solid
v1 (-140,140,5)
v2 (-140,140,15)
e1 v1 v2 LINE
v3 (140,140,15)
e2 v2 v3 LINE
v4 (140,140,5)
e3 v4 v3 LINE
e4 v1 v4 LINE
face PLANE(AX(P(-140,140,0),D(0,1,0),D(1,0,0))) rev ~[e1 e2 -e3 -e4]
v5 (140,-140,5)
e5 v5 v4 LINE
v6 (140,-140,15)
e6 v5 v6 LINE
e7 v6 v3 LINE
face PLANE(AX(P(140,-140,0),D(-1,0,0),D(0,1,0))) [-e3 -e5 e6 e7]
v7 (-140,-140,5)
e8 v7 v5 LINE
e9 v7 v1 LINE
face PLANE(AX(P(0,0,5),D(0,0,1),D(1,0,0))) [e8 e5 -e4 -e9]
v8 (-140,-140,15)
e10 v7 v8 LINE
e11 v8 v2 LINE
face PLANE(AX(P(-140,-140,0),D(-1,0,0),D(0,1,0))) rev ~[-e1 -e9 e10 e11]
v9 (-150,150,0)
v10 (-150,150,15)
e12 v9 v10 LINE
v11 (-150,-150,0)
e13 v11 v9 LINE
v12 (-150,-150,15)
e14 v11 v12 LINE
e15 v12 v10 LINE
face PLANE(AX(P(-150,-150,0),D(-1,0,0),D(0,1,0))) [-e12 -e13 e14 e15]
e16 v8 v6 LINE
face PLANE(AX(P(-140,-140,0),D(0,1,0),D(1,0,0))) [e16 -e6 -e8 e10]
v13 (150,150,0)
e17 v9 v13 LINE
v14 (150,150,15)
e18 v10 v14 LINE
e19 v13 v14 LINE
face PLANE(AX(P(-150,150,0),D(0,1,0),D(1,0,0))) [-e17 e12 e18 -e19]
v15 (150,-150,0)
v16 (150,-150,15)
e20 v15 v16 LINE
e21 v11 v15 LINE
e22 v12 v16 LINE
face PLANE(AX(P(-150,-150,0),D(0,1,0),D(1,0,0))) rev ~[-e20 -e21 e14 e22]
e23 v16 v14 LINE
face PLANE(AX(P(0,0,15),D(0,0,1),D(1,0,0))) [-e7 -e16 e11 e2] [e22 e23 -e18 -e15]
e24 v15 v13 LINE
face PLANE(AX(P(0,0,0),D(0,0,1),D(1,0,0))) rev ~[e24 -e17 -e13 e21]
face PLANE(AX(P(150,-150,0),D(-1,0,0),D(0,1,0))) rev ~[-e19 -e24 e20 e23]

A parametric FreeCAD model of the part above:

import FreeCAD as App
import Part
import Sketcher

V = App.Vector

doc = App.newDocument("Part")
body = doc.addObject("PartDesign::Body", "Body")

sketch1 = body.newObject("Sketcher::SketchObject", "Sketch")
sketch1.AttachmentSupport = (doc.getObject("XY_Plane"), [""])
sketch1.MapMode = "FlatFace"
sketch1.addGeometry(Part.LineSegment(V(-140, 140, 0), V(-140, -140, 0)), False)
sketch1.addGeometry(Part.LineSegment(V(-140, -140, 0), V(140, -140, 0)), False)
sketch1.addGeometry(Part.LineSegment(V(140, -140, 0), V(140, 140, 0)), False)
sketch1.addGeometry(Part.LineSegment(V(140, 140, 0), V(-140, 140, 0)), False)
sketch1.addConstraint(Sketcher.Constraint("Coincident", 0, 2, 1, 1))
sketch1.addConstraint(Sketcher.Constraint("Coincident", 1, 2, 2, 1))
sketch1.addConstraint(Sketcher.Constraint("Coincident", 2, 2, 3, 1))
sketch1.addConstraint(Sketcher.Constraint("Coincident", 3, 2, 0, 1))
sketch1.addConstraint(Sketcher.Constraint("Vertical", 0))
sketch1.addConstraint(Sketcher.Constraint("Horizontal", 1))
sketch1.addConstraint(Sketcher.Constraint("Vertical", 2))
sketch1.addConstraint(Sketcher.Constraint("Horizontal", 3))
sketch1.addConstraint(Sketcher.Constraint("Symmetric", 0, 2, 2, 2, -1, 1))
sketch1.addConstraint(Sketcher.Constraint("Equal", 3, 0))
sketch1.addConstraint(Sketcher.Constraint("DistanceX", 1, 1, 1, 2, 280.0))
pad1 = body.newObject("PartDesign::Pad", "Pad")
pad1.Profile = sketch1
pad1.Length = 5
body2 = doc.addObject("PartDesign::Body", "Body001")

sketch2 = body2.newObject("Sketcher::SketchObject", "Sketch001")
sketch2.AttachmentSupport = (doc.getObject("XY_Plane001"), [""])
sketch2.MapMode = "FlatFace"
sketch2.addGeometry(Part.LineSegment(V(-150, 150, 0), V(-150, -150, 0)), False)
sketch2.addGeometry(Part.LineSegment(V(-150, -150, 0), V(150, -150, 0)), False)
sketch2.addGeometry(Part.LineSegment(V(150, -150, 0), V(150, 150, 0)), False)
sketch2.addGeometry(Part.LineSegment(V(150, 150, 0), V(-150, 150, 0)), False)
sketch2.addGeometry(Part.LineSegment(V(140, -140, 0), V(-140, -140, 0)), False)
sketch2.addGeometry(Part.LineSegment(V(-140, -140, 0), V(-140, 140, 0)), False)
sketch2.addGeometry(Part.LineSegment(V(-140, 140, 0), V(140, 140, 0)), False)
sketch2.addGeometry(Part.LineSegment(V(140, 140, 0), V(140, -140, 0)), False)
sketch2.addConstraint(Sketcher.Constraint("Coincident", 0, 2, 1, 1))
sketch2.addConstraint(Sketcher.Constraint("Coincident", 1, 2, 2, 1))
sketch2.addConstraint(Sketcher.Constraint("Coincident", 2, 2, 3, 1))
sketch2.addConstraint(Sketcher.Constraint("Coincident", 3, 2, 0, 1))
sketch2.addConstraint(Sketcher.Constraint("Coincident", 4, 2, 5, 1))
sketch2.addConstraint(Sketcher.Constraint("Coincident", 5, 2, 6, 1))
sketch2.addConstraint(Sketcher.Constraint("Coincident", 6, 2, 7, 1))
sketch2.addConstraint(Sketcher.Constraint("Coincident", 7, 2, 4, 1))
sketch2.addConstraint(Sketcher.Constraint("Vertical", 0))
sketch2.addConstraint(Sketcher.Constraint("Horizontal", 1))
sketch2.addConstraint(Sketcher.Constraint("Vertical", 2))
sketch2.addConstraint(Sketcher.Constraint("Horizontal", 3))
sketch2.addConstraint(Sketcher.Constraint("Horizontal", 4))
sketch2.addConstraint(Sketcher.Constraint("Vertical", 5))
sketch2.addConstraint(Sketcher.Constraint("Horizontal", 6))
sketch2.addConstraint(Sketcher.Constraint("Vertical", 7))
sketch2.addConstraint(Sketcher.Constraint("Symmetric", 0, 2, 2, 2, -1, 1))
sketch2.addConstraint(Sketcher.Constraint("Symmetric", 4, 2, 6, 2, -1, 1))
sketch2.addConstraint(Sketcher.Constraint("Equal", 3, 0))
sketch2.addConstraint(Sketcher.Constraint("Equal", 6, 5))
sketch2.addConstraint(Sketcher.Constraint("DistanceX", 1, 1, 1, 2, 300.0))
sketch2.addConstraint(Sketcher.Constraint("DistanceX", 4, 2, 4, 1, 280.0))
pad2 = body2.newObject("PartDesign::Pad", "Pad001")
pad2.Profile = sketch2
pad2.Length = 15
doc.recompute()

boolean = body2.newObject("PartDesign::Boolean", "Boolean")
boolean.Type = "Fuse"
boolean.addObjects([body])

doc.recompute()
